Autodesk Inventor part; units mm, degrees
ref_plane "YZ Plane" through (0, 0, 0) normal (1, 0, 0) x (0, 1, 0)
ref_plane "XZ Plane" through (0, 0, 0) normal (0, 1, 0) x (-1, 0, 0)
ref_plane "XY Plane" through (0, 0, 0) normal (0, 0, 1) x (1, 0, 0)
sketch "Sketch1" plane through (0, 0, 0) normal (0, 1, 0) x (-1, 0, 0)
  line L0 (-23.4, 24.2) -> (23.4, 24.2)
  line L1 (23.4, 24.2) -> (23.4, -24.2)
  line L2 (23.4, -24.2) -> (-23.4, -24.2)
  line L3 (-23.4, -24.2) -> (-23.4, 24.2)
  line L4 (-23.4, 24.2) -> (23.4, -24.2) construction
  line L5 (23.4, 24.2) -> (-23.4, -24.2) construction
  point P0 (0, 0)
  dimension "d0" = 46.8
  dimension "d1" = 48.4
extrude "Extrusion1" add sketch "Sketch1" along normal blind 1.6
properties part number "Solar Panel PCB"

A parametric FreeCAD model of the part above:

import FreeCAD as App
import Part
import Sketcher
Q = App.Units.Quantity


def add_polygon(sketch, points):
    """Adds a closed chain of lines whose ends are joined by coincident constraints."""
    first, n = sketch.GeometryCount, len(points)
    for a, b in zip(points, points[1:] + points[:1]):
        sketch.addGeometry(Part.LineSegment(App.Vector(*a, 0), App.Vector(*b, 0)), False)
    for i in range(n):
        sketch.addConstraint(Sketcher.Constraint("Coincident", first + i, 2, first + (i + 1) % n, 1))

doc = App.newDocument("Part")
body = doc.addObject("PartDesign::Body", "Body")

# Sketch on XZ plane
sketch1 = doc.addObject("Sketcher::SketchObject", "Sketch")
body.addObject(sketch1)
sketch1.AttachmentSupport = (doc.XZ_Plane, [""])
sketch1.MapMode = "FlatFace"
add_polygon(sketch1, [(-23, 24), (23, 24), (23, -24), (-23, -24)])  # lines 0-3
sketch1.addConstraint([
    Sketcher.Constraint("Horizontal", 0),
    Sketcher.Constraint("Vertical", 1),
    Sketcher.Constraint("Horizontal", 2),
    Sketcher.Constraint("Vertical", 3),
    Sketcher.Constraint("Symmetric", 0, 2, 2, 2, -1, 1),
    Sketcher.Constraint("DistanceX", 0, 1, 0, 2, Q("46.8 mm")),
    Sketcher.Constraint("DistanceY", 1, 2, 1, 1, Q("48.4 mm")),
])
pad1 = doc.addObject("PartDesign::Pad", "Pad")
body.addObject(pad1)
pad1.Profile = sketch1
pad1.Length = 1.6
pad1.Reversed = True

doc.recompute()
